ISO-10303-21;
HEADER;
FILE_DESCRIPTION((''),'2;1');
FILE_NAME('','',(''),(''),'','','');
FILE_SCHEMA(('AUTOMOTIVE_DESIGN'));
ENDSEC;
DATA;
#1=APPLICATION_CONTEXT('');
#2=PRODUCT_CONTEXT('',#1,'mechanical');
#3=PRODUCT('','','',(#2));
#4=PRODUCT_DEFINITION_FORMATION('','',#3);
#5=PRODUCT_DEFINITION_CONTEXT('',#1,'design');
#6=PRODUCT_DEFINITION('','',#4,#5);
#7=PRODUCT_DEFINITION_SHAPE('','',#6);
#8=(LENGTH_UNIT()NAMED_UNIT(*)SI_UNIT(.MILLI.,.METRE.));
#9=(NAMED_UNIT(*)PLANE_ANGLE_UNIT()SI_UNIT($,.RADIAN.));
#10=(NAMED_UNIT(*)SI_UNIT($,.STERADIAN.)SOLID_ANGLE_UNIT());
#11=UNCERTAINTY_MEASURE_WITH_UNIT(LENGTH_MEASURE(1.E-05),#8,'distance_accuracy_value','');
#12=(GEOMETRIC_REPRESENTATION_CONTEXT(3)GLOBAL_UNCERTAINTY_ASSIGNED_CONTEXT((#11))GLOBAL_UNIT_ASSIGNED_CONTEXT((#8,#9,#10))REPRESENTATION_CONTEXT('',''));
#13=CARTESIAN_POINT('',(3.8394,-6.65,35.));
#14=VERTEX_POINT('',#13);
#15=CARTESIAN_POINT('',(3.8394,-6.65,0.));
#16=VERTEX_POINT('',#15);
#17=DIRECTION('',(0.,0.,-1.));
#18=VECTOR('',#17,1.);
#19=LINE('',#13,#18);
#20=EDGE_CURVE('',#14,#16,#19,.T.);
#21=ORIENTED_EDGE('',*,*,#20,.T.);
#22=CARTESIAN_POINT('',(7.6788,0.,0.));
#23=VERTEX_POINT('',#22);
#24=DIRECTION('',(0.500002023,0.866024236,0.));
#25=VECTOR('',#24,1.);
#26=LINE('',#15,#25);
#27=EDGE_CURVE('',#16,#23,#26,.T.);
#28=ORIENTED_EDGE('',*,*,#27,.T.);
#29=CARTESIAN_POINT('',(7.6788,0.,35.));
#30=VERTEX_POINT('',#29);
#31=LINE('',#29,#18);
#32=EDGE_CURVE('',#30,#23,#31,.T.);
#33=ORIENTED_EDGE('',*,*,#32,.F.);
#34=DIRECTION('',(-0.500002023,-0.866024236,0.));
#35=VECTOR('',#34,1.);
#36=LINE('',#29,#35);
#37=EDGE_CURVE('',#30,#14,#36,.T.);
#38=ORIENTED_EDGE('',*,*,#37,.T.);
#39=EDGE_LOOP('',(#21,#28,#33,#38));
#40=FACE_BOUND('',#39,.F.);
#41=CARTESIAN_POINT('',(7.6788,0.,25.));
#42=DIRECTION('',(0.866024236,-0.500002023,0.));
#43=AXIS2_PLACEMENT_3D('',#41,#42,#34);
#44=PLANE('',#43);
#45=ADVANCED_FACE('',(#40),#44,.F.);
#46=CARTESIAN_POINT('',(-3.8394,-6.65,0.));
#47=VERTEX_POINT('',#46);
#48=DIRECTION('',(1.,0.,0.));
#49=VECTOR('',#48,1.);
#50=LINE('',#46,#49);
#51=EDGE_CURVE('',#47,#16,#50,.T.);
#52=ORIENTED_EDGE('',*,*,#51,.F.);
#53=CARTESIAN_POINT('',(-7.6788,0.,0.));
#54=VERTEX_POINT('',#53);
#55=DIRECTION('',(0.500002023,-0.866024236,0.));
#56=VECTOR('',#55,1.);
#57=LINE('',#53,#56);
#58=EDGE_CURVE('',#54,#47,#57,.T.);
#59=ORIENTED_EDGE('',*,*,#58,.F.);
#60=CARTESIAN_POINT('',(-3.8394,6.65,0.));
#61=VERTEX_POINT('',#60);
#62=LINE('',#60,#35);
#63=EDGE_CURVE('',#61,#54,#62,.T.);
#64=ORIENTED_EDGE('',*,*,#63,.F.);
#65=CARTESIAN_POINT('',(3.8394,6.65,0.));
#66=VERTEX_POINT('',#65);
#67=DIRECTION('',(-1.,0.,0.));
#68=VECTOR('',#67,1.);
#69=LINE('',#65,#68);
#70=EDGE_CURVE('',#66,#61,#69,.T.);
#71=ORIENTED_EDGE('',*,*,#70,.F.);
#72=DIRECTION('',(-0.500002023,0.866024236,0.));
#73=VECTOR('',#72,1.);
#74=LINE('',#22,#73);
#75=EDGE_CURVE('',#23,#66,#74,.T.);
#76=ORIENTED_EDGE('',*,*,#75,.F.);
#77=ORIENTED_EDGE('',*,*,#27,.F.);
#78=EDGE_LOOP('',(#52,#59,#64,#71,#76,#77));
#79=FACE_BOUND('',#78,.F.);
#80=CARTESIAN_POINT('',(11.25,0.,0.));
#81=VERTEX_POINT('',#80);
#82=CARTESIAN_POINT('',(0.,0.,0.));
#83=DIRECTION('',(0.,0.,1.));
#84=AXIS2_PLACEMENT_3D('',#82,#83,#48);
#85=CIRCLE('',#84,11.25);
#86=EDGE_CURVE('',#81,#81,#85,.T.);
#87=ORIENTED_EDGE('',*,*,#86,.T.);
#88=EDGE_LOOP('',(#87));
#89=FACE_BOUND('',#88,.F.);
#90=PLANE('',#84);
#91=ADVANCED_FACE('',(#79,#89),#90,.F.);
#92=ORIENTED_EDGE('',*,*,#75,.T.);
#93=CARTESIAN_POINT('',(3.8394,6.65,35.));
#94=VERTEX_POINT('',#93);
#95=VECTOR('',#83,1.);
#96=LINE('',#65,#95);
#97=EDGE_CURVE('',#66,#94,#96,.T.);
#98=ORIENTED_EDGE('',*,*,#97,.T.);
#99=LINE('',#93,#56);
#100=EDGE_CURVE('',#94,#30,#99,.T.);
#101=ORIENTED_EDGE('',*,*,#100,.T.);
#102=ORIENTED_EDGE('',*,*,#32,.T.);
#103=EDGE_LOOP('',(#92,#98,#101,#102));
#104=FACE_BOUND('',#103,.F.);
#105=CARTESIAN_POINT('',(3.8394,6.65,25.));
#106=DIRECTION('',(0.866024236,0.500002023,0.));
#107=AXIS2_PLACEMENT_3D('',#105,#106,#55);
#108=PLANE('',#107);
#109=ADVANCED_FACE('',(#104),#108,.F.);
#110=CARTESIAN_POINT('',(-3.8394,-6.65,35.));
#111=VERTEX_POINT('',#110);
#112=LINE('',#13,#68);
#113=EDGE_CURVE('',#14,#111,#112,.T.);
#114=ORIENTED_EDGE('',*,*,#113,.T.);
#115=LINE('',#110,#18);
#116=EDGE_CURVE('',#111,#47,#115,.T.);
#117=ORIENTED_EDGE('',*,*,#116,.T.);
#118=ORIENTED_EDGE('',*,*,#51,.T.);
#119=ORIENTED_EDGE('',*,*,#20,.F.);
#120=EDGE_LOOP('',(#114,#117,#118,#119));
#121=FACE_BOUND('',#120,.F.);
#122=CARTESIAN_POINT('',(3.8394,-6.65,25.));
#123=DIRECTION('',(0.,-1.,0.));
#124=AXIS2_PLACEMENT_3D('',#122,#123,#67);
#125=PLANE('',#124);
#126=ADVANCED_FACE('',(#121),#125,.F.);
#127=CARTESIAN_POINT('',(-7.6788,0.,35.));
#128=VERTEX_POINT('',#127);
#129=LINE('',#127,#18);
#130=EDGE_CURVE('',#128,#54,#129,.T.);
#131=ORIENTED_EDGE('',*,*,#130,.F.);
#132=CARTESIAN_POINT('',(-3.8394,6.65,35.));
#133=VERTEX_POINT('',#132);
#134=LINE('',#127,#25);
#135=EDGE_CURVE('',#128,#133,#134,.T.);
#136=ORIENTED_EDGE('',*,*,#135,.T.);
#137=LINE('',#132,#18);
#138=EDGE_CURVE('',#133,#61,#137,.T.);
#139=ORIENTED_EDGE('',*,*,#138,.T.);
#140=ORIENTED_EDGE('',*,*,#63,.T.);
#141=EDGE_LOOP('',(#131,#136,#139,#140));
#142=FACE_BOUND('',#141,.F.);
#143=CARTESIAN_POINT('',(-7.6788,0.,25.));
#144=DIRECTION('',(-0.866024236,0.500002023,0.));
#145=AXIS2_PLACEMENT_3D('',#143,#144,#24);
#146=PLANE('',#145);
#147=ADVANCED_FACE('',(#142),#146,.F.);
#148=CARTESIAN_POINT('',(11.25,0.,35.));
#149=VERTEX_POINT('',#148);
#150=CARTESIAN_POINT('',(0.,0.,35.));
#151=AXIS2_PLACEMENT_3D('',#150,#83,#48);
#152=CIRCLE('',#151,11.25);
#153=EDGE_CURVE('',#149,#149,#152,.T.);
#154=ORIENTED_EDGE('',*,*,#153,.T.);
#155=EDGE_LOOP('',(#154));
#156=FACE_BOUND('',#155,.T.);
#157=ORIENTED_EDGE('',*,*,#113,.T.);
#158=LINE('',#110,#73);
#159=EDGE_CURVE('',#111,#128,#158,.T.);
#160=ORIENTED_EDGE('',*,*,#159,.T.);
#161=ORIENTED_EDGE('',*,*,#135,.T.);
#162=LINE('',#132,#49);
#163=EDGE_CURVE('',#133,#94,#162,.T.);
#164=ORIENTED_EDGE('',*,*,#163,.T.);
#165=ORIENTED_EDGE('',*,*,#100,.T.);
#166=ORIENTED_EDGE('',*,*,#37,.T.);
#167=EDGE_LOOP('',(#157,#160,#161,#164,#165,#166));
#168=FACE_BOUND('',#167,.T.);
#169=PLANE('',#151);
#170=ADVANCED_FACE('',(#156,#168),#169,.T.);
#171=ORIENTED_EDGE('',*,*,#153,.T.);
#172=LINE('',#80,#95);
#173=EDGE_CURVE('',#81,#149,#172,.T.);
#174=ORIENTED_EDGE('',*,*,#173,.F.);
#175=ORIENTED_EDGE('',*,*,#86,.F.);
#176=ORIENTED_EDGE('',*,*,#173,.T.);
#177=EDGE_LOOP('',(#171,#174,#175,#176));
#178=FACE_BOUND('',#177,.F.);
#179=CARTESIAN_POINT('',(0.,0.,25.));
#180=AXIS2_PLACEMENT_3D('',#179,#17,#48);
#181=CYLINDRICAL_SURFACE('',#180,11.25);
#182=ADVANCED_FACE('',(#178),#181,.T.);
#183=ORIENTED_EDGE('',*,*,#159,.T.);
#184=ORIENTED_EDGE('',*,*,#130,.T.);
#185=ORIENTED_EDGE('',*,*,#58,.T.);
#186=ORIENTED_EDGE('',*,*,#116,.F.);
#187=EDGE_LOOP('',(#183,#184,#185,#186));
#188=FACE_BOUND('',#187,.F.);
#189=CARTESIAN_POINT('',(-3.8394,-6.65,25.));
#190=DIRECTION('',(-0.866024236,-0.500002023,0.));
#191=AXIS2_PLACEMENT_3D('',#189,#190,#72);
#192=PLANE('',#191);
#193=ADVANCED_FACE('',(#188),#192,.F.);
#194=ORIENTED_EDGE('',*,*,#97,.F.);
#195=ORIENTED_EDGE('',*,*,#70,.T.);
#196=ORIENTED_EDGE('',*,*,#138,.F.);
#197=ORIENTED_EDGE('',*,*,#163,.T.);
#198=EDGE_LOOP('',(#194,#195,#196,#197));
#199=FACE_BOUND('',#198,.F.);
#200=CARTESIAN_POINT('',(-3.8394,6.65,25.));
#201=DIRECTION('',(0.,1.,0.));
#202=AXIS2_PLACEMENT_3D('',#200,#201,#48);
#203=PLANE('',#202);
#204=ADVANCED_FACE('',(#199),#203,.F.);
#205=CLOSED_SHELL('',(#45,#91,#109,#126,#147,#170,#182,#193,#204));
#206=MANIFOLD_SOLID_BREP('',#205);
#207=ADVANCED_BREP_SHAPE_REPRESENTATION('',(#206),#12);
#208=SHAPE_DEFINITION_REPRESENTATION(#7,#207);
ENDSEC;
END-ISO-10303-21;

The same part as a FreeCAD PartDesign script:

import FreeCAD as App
import Part
import Sketcher
Q = App.Units.Quantity

doc = App.newDocument("Part")
body = doc.addObject("PartDesign::Body", "Body")

# Sketch on XY plane
sketch1 = body.newObject("Sketcher::SketchObject", "Sketch")
sketch1.AttachmentSupport = (doc.getObject("XY_Plane"), [""])
sketch1.MapMode = "FlatFace"
sketch1.addGeometry(Part.Circle(App.Vector(0, 0, 0), App.Vector(0, 0, 1), 11.25), False)
sketch1.addConstraint(Sketcher.Constraint("Coincident", 0, 3, -1, 1))
sketch1.addConstraint(Sketcher.Constraint("Diameter", 0, Q("22.5 mm")))
pad1 = body.newObject("PartDesign::Pad", "Pad")
pad1.Profile = sketch1
pad1.Length = 25

# Sketch on XY plane
sketch2 = body.newObject("Sketcher::SketchObject", "Sketch001")
sketch2.AttachmentSupport = (doc.getObject("XY_Plane"), [""])
sketch2.MapMode = "FlatFace"
sketch2.addGeometry(Part.LineSegment(App.Vector(-3.8394, -6.65, 0), App.Vector(-7.6788, 0, 0)), False)
sketch2.addGeometry(Part.LineSegment(App.Vector(-7.6788, 0, 0), App.Vector(-3.8394, 6.65, 0)), False)
sketch2.addGeometry(Part.LineSegment(App.Vector(-3.8394, 6.65, 0), App.Vector(3.8394, 6.65, 0)), False)
sketch2.addGeometry(Part.LineSegment(App.Vector(3.8394, 6.65, 0), App.Vector(7.6788, 0, 0)), False)
sketch2.addGeometry(Part.LineSegment(App.Vector(7.6788, 0, 0), App.Vector(3.8394, -6.65, 0)), False)
sketch2.addGeometry(Part.LineSegment(App.Vector(3.8394, -6.65, 0), App.Vector(-3.8394, -6.65, 0)), False)
sketch2.addConstraint(Sketcher.Constraint("Coincident", 0, 2, 1, 1))
sketch2.addConstraint(Sketcher.Constraint("Coincident", 1, 2, 2, 1))
sketch2.addConstraint(Sketcher.Constraint("Coincident", 2, 2, 3, 1))
sketch2.addConstraint(Sketcher.Constraint("Coincident", 3, 2, 4, 1))
sketch2.addConstraint(Sketcher.Constraint("Coincident", 4, 2, 5, 1))
sketch2.addConstraint(Sketcher.Constraint("Coincident", 5, 2, 0, 1))
sketch2.addConstraint(Sketcher.Constraint("Horizontal", 2))
sketch2.addConstraint(Sketcher.Constraint("Horizontal", 5))
sketch2.addConstraint(Sketcher.Constraint("Symmetric", 0, 2, 3, 2, -1, 1))
sketch2.addConstraint(Sketcher.Constraint("Symmetric", 1, 2, 4, 2, -1, 1))
sketch2.addConstraint(Sketcher.Constraint("PointOnObject", 0, 2, -1))
sketch2.addConstraint(Sketcher.Constraint("Parallel", 0, 3))
sketch2.addConstraint(Sketcher.Constraint("Vertical", 2, 2, 4, 2))
sketch2.addConstraint(Sketcher.Constraint("DistanceY", 4, 2, 2, 2, Q("13.3 mm")))
sketch2.addConstraint(Sketcher.Constraint("Angle", 0, Q("120.0001 deg")))
sketch2.addConstraint(Sketcher.Constraint("DistanceX", 2, 1, 2, 2, Q("7.6788 mm")))
pocket1 = body.newObject("PartDesign::Pocket", "Pocket")
pocket1.Profile = sketch2
pocket1.Length = 30
pocket1.Reversed = True

# Sketch on XY plane
sketch3 = body.newObject("Sketcher::SketchObject", "Sketch002")
sketch3.AttachmentSupport = (doc.getObject("XY_Plane"), [""])
sketch3.MapMode = "FlatFace"
sketch3.AttachmentOffset = App.Placement(App.Vector(0, 0, 25), App.Rotation())
sketch3.addGeometry(Part.Circle(App.Vector(0, 0, 0), App.Vector(0, 0, 1), 11.25), False)
sketch3.addGeometry(Part.LineSegment(App.Vector(-3.8394, 6.65, 0), App.Vector(3.8394, 6.65, 0)), False)
sketch3.addGeometry(Part.LineSegment(App.Vector(3.8394, 6.65, 0), App.Vector(7.6788, 0, 0)), False)
sketch3.addGeometry(Part.LineSegment(App.Vector(7.6788, 0, 0), App.Vector(3.8394, -6.65, 0)), False)
sketch3.addGeometry(Part.LineSegment(App.Vector(3.8394, -6.65, 0), App.Vector(-3.8394, -6.65, 0)), False)
sketch3.addGeometry(Part.LineSegment(App.Vector(-3.8394, -6.65, 0), App.Vector(-7.6788, 0, 0)), False)
sketch3.addGeometry(Part.LineSegment(App.Vector(-7.6788, 0, 0), App.Vector(-3.8394, 6.65, 0)), False)
sketch3.addConstraint(Sketcher.Constraint("Coincident", 1, 2, 2, 1))
sketch3.addConstraint(Sketcher.Constraint("Coincident", 2, 2, 3, 1))
sketch3.addConstraint(Sketcher.Constraint("Coincident", 3, 2, 4, 1))
sketch3.addConstraint(Sketcher.Constraint("Coincident", 4, 2, 5, 1))
sketch3.addConstraint(Sketcher.Constraint("Coincident", 5, 2, 6, 1))
sketch3.addConstraint(Sketcher.Constraint("Coincident", 6, 2, 1, 1))
sketch3.addConstraint(Sketcher.Constraint("Horizontal", 1))
sketch3.addConstraint(Sketcher.Constraint("Horizontal", 4))
sketch3.addConstraint(Sketcher.Constraint("Coincident", 0, 3, -1, 1))
sketch3.addConstraint(Sketcher.Constraint("Symmetric", 1, 2, 4, 2, -1, 1))
sketch3.addConstraint(Sketcher.Constraint("Symmetric", 2, 2, 5, 2, -1, 1))
sketch3.addConstraint(Sketcher.Constraint("PointOnObject", 2, 2, -1))
sketch3.addConstraint(Sketcher.Constraint("Parallel", 3, 6))
sketch3.addConstraint(Sketcher.Constraint("Vertical", 1, 2, 3, 2))
sketch3.addConstraint(Sketcher.Constraint("Diameter", 0, Q("22.5 mm")))
sketch3.addConstraint(Sketcher.Constraint("Angle", 2, Q("-59.9999 deg")))
sketch3.addConstraint(Sketcher.Constraint("DistanceY", 3, 2, 1, 2, Q("13.3 mm")))
sketch3.addConstraint(Sketcher.Constraint("DistanceX", 1, 1, 1, 2, Q("7.6788 mm")))
pad2 = body.newObject("PartDesign::Pad", "Pad001")
pad2.Profile = sketch3
pad2.Length = 10

doc.recompute()
